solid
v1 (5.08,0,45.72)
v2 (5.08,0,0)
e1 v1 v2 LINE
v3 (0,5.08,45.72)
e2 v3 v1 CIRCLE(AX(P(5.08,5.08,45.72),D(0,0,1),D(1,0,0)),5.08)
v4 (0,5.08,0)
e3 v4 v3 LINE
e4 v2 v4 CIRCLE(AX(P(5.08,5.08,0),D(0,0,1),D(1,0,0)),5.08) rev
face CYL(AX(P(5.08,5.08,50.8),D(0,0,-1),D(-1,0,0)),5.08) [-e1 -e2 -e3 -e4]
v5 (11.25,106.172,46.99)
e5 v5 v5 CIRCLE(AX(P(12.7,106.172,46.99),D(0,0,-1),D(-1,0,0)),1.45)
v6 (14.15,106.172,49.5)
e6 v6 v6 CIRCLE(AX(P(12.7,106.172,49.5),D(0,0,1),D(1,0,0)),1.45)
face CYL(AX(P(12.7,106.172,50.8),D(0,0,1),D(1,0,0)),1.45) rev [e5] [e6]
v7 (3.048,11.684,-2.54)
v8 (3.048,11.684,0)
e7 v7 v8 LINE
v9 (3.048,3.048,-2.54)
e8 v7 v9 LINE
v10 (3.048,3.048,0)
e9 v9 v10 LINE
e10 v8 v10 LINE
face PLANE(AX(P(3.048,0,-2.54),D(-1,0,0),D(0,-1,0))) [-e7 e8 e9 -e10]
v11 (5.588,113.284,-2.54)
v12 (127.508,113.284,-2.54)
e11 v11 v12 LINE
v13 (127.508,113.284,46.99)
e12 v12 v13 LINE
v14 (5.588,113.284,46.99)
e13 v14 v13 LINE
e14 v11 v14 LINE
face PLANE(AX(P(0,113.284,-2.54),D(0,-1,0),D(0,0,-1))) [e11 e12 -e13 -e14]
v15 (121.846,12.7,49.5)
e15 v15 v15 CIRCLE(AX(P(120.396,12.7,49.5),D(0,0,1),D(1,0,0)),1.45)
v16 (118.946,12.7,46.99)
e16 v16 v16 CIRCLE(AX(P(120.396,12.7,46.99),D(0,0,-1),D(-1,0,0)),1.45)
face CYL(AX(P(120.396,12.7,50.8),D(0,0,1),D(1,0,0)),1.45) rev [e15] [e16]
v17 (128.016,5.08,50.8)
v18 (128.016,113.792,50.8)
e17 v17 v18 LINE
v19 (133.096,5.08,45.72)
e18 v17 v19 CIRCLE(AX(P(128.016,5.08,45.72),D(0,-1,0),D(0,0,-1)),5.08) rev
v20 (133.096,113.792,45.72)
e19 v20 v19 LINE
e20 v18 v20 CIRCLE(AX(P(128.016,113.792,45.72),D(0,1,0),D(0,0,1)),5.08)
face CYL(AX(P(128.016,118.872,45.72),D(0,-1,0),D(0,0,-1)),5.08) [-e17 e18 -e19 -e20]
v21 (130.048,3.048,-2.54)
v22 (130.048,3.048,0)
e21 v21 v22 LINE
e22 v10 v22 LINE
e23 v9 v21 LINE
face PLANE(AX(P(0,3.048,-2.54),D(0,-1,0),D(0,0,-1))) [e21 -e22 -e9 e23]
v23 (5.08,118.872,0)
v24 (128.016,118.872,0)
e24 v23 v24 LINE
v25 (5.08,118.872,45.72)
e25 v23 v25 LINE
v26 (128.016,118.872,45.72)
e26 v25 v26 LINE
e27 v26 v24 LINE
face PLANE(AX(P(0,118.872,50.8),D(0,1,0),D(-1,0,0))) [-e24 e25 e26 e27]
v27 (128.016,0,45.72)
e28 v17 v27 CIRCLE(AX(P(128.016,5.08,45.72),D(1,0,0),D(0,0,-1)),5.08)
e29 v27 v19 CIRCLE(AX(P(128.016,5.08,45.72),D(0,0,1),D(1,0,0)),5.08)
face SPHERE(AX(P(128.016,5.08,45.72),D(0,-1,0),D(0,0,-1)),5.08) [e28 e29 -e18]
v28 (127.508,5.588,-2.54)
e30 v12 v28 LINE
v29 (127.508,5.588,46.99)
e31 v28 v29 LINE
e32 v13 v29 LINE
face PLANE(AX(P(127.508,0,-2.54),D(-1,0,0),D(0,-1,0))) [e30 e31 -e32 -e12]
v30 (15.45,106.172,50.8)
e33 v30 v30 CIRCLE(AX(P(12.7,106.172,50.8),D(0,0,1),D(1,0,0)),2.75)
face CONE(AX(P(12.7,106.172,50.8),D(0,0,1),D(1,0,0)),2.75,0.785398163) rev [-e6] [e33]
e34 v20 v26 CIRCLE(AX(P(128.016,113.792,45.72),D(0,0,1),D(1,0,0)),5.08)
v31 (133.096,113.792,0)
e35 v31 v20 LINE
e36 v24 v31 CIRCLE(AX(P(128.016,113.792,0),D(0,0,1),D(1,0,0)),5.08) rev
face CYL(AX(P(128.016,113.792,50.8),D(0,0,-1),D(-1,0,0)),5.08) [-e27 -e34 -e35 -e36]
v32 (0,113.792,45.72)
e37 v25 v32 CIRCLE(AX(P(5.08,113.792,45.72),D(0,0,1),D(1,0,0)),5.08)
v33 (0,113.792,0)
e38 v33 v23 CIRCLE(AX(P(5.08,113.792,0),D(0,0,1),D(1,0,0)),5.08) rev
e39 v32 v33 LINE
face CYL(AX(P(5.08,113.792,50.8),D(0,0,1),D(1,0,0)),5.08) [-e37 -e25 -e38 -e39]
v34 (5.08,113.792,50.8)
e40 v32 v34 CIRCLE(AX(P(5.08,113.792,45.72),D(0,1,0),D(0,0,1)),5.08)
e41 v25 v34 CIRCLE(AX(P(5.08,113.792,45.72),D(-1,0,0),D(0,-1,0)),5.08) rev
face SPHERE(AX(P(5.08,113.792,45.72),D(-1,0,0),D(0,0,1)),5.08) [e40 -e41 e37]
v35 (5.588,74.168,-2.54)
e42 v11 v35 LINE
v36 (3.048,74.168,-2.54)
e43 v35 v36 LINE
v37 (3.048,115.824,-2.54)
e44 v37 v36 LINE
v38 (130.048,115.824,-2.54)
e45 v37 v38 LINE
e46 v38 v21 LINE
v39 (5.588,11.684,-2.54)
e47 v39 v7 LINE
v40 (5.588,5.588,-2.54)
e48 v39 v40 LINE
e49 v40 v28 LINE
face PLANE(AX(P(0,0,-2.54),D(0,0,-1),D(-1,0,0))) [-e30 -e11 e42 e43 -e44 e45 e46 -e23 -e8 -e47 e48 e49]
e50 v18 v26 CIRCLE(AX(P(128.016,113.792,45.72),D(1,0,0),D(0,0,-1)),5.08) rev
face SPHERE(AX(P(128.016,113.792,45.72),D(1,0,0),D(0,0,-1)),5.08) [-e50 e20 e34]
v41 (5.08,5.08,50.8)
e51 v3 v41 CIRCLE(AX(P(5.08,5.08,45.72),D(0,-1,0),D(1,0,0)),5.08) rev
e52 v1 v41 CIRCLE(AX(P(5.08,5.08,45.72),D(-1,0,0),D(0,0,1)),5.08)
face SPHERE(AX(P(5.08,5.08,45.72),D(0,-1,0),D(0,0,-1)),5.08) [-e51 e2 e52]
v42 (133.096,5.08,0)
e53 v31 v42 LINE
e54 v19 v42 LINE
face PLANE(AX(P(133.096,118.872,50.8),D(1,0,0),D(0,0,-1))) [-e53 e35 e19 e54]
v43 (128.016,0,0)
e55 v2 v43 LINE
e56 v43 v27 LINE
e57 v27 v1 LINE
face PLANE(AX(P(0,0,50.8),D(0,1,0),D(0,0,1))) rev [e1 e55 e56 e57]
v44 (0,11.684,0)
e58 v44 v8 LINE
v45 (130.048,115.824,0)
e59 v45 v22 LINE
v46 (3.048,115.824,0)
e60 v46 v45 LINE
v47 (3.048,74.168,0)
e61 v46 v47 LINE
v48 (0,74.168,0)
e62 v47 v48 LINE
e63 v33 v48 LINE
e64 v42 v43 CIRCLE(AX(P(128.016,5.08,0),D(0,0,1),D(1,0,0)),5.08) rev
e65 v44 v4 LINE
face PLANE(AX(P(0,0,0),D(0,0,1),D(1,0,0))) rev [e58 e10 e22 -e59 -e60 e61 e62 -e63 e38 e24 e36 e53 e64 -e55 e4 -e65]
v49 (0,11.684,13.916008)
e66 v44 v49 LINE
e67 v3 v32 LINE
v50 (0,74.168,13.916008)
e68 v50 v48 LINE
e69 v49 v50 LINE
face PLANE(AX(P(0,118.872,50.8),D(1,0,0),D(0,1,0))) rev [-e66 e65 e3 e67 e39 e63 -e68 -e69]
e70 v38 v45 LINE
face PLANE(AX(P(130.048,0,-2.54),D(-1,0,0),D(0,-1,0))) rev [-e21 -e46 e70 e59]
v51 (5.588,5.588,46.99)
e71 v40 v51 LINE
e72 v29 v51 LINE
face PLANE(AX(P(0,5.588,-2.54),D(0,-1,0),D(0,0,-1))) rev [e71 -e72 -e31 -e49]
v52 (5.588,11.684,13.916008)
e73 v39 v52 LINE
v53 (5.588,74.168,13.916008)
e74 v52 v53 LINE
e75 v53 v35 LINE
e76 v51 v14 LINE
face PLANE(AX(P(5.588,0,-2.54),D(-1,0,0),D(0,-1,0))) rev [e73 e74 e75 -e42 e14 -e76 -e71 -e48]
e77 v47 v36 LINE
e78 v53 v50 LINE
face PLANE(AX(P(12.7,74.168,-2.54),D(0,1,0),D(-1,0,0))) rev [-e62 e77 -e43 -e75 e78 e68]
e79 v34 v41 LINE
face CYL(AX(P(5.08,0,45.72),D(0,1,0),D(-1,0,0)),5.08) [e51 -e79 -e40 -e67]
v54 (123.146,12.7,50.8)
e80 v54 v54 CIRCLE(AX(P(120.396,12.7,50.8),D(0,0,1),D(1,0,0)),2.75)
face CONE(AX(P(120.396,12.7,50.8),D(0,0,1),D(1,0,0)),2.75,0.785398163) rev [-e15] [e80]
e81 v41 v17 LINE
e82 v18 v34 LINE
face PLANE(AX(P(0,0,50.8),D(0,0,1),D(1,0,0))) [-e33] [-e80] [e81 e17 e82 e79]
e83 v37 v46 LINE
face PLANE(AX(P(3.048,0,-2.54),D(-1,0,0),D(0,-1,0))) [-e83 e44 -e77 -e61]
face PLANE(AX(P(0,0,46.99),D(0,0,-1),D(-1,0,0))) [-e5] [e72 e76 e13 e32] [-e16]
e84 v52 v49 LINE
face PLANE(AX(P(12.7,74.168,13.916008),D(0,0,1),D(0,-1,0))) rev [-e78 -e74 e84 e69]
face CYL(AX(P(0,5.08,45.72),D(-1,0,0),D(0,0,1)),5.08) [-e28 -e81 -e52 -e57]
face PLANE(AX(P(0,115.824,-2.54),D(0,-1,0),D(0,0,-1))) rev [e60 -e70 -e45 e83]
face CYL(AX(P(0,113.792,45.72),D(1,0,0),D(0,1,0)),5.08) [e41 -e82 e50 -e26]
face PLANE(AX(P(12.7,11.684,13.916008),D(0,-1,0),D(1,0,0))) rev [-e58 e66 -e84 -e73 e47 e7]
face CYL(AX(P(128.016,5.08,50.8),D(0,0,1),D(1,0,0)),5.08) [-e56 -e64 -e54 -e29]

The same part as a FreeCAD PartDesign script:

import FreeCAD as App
import Part
import Sketcher

V = App.Vector
Q = App.Units.Quantity


def edges_at(feature, points):
    """Names of the edges that pass closest to the given points."""
    edges = feature.Shape.Edges
    near = lambda p: min(range(len(edges)), key=lambda i: edges[i].distToShape(Part.Vertex(*p))[0])
    return sorted({f"Edge{near(p) + 1}" for p in points})

doc = App.newDocument("Part")
body = doc.addObject("PartDesign::Body", "Body")

# Sketch on XY plane
sketch1 = body.newObject("Sketcher::SketchObject", "Sketch")
sketch1.AttachmentSupport = (doc.getObject("XY_Plane"), [""])
sketch1.MapMode = "FlatFace"
sketch1.addGeometry(Part.LineSegment(V(0, 118.872, 0), V(0, 0, 0)), False)
sketch1.addGeometry(Part.LineSegment(V(0, 0, 0), V(133.096, 0, 0)), False)
sketch1.addGeometry(Part.LineSegment(V(133.096, 0, 0), V(133.096, 118.872, 0)), False)
sketch1.addGeometry(Part.LineSegment(V(133.096, 118.872, 0), V(0, 118.872, 0)), False)
sketch1.addConstraint(Sketcher.Constraint("Coincident", 0, 2, 1, 1))
sketch1.addConstraint(Sketcher.Constraint("Coincident", 1, 2, 2, 1))
sketch1.addConstraint(Sketcher.Constraint("Coincident", 2, 2, 3, 1))
sketch1.addConstraint(Sketcher.Constraint("Coincident", 3, 2, 0, 1))
sketch1.addConstraint(Sketcher.Constraint("Vertical", 0))
sketch1.addConstraint(Sketcher.Constraint("Horizontal", 1))
sketch1.addConstraint(Sketcher.Constraint("Vertical", 2))
sketch1.addConstraint(Sketcher.Constraint("Horizontal", 3))
sketch1.addConstraint(Sketcher.Constraint("Coincident", 0, 2, -1, 1))
sketch1.addConstraint(Sketcher.Constraint("DistanceX", 1, 1, 1, 2, Q("5.24 in")))
sketch1.addConstraint(Sketcher.Constraint("DistanceY", 0, 2, 0, 1, Q("4.68 in")))
pad1 = body.newObject("PartDesign::Pad", "Pad")
pad1.Profile = sketch1
pad1.Length = Q("2 in")

# Sketch on XY plane
sketch2 = body.newObject("Sketcher::SketchObject", "Sketch001")
sketch2.AttachmentSupport = (doc.getObject("XY_Plane"), [""])
sketch2.MapMode = "FlatFace"
sketch2.addGeometry(Part.LineSegment(V(130.048, 115.824, 0), V(3.048, 115.824, 0)), False)
sketch2.addGeometry(Part.LineSegment(V(3.048, 115.824, 0), V(3.048, 3.048, 0)), False)
sketch2.addGeometry(Part.LineSegment(V(3.048, 3.048, 0), V(130.048, 3.048, 0)), False)
sketch2.addGeometry(Part.LineSegment(V(130.048, 3.048, 0), V(130.048, 115.824, 0)), False)
sketch2.addGeometry(Part.LineSegment(V(5.588, 5.588, 0), V(5.588, 113.284, 0)), False)
sketch2.addGeometry(Part.LineSegment(V(5.588, 113.284, 0), V(127.508, 113.284, 0)), False)
sketch2.addGeometry(Part.LineSegment(V(127.508, 113.284, 0), V(127.508, 5.588, 0)), False)
sketch2.addGeometry(Part.LineSegment(V(127.508, 5.588, 0), V(5.588, 5.588, 0)), False)
sketch2.addConstraint(Sketcher.Constraint("Coincident", 0, 2, 1, 1))
sketch2.addConstraint(Sketcher.Constraint("Coincident", 1, 2, 2, 1))
sketch2.addConstraint(Sketcher.Constraint("Coincident", 2, 2, 3, 1))
sketch2.addConstraint(Sketcher.Constraint("Coincident", 3, 2, 0, 1))
sketch2.addConstraint(Sketcher.Constraint("Coincident", 4, 2, 5, 1))
sketch2.addConstraint(Sketcher.Constraint("Coincident", 5, 2, 6, 1))
sketch2.addConstraint(Sketcher.Constraint("Coincident", 6, 2, 7, 1))
sketch2.addConstraint(Sketcher.Constraint("Coincident", 7, 2, 4, 1))
sketch2.addConstraint(Sketcher.Constraint("Horizontal", 0))
sketch2.addConstraint(Sketcher.Constraint("Vertical", 1))
sketch2.addConstraint(Sketcher.Constraint("Horizontal", 2))
sketch2.addConstraint(Sketcher.Constraint("Vertical", 3))
sketch2.addConstraint(Sketcher.Constraint("Vertical", 4))
sketch2.addConstraint(Sketcher.Constraint("Horizontal", 5))
sketch2.addConstraint(Sketcher.Constraint("Vertical", 6))
sketch2.addConstraint(Sketcher.Constraint("Horizontal", 7))
sketch2.addConstraint(Sketcher.Constraint("DistanceX", 0, 2, 0, 1, Q("5 in")))
sketch2.addConstraint(Sketcher.Constraint("DistanceX", 5, 1, 5, 2, Q("4.8 in")))
sketch2.addConstraint(Sketcher.Constraint("DistanceY", 1, 2, 1, 1, Q("4.44 in")))
sketch2.addConstraint(Sketcher.Constraint("DistanceY", 4, 1, 4, 2, Q("4.24 in")))
sketch2.addConstraint(Sketcher.Constraint("DistanceX", 0, 2, 4, 2, Q("0.1 in")))
sketch2.addConstraint(Sketcher.Constraint("DistanceY", 4, 2, 0, 2, Q("0.1 in")))
sketch2.addConstraint(Sketcher.Constraint("DistanceX", -1, 1, 0, 2, Q("0.12 in")))
sketch2.addConstraint(Sketcher.Constraint("DistanceY", -1, 1, 0, 2, Q("4.56 in")))
pad2 = body.newObject("PartDesign::Pad", "Pad001")
pad2.Profile = sketch2
pad2.Length = Q("0.1 in")
pad2.Reversed = True

# Sketch on XY plane
sketch3 = body.newObject("Sketcher::SketchObject", "Sketch002")
sketch3.AttachmentSupport = (doc.getObject("XY_Plane"), [""])
sketch3.MapMode = "FlatFace"
sketch3.addGeometry(Part.LineSegment(V(127.508, 113.284, 0), V(127.508, 5.588, 0)), False)
sketch3.addGeometry(Part.LineSegment(V(127.508, 5.588, 0), V(5.588, 5.588, 0)), False)
sketch3.addGeometry(Part.LineSegment(V(5.588, 5.588, 0), V(5.588, 113.284, 0)), False)
sketch3.addGeometry(Part.LineSegment(V(5.588, 113.284, 0), V(127.508, 113.284, 0)), False)
sketch3.addConstraint(Sketcher.Constraint("Coincident", 0, 2, 1, 1))
sketch3.addConstraint(Sketcher.Constraint("Coincident", 1, 2, 2, 1))
sketch3.addConstraint(Sketcher.Constraint("Coincident", 2, 2, 3, 1))
sketch3.addConstraint(Sketcher.Constraint("Coincident", 3, 2, 0, 1))
sketch3.addConstraint(Sketcher.Constraint("Vertical", 0))
sketch3.addConstraint(Sketcher.Constraint("Horizontal", 1))
sketch3.addConstraint(Sketcher.Constraint("Vertical", 2))
sketch3.addConstraint(Sketcher.Constraint("Horizontal", 3))
sketch3.addConstraint(Sketcher.Constraint("DistanceX", 1, 2, 1, 1, Q("4.8 in")))
sketch3.addConstraint(Sketcher.Constraint("DistanceY", 0, 2, 0, 1, Q("4.24 in")))
sketch3.addConstraint(Sketcher.Constraint("DistanceX", -1, 1, 0, 2, Q("5.02 in")))
sketch3.addConstraint(Sketcher.Constraint("DistanceY", -1, 1, 0, 2, Q("0.22 in")))
pocket1 = body.newObject("PartDesign::Pocket", "Pocket")
pocket1.Profile = sketch3
pocket1.Length = Q("1.85 in")
pocket1.Reversed = True

# Sketch on YZ plane
sketch4 = body.newObject("Sketcher::SketchObject", "Sketch003")
sketch4.AttachmentSupport = (doc.getObject("YZ_Plane"), [""])
sketch4.MapMode = "FlatFace"
sketch4.addGeometry(Part.LineSegment(V(74.168, -2.54, 0), V(11.684, -2.54, 0)), False)
sketch4.addGeometry(Part.LineSegment(V(11.684, -2.54, 0), V(11.684, 13.916008, 0)), False)
sketch4.addGeometry(Part.LineSegment(V(11.684, 13.916008, 0), V(74.168, 13.916008, 0)), False)
sketch4.addGeometry(Part.LineSegment(V(74.168, 13.916008, 0), V(74.168, -2.54, 0)), False)
sketch4.addConstraint(Sketcher.Constraint("Coincident", 0, 2, 1, 1))
sketch4.addConstraint(Sketcher.Constraint("Coincident", 1, 2, 2, 1))
sketch4.addConstraint(Sketcher.Constraint("Coincident", 2, 2, 3, 1))
sketch4.addConstraint(Sketcher.Constraint("Coincident", 3, 2, 0, 1))
sketch4.addConstraint(Sketcher.Constraint("Horizontal", 0))
sketch4.addConstraint(Sketcher.Constraint("Vertical", 1))
sketch4.addConstraint(Sketcher.Constraint("Horizontal", 2))
sketch4.addConstraint(Sketcher.Constraint("Vertical", 3))
sketch4.addConstraint(Sketcher.Constraint("DistanceX", 0, 2, 0, 1, Q("2.46 in")))
sketch4.addConstraint(Sketcher.Constraint("DistanceY", 0, 2, -1, 1, Q("0.1 in")))
sketch4.addConstraint(Sketcher.Constraint("DistanceX", -1, 1, 0, 2, Q("0.46 in")))
sketch4.addConstraint(Sketcher.Constraint("DistanceY", 1, 1, 1, 2, Q("16.456008 mm")))
pocket2 = body.newObject("PartDesign::Pocket", "Pocket001")
pocket2.Profile = sketch4
pocket2.Length = Q("0.5 in")
pocket2.Reversed = True
doc.recompute()

fillet = body.newObject("PartDesign::Fillet", "Fillet")
fillet.Base = (pocket2, edges_at(pocket2, [
    (133.096, 59.436, 50.8),
    (66.548, 118.872, 50.8),
    (0, 59.436, 50.8),
    (0, 118.872, 25.4),
    (133.096, 118.872, 25.4),
    (133.096, 0, 25.4),
    (0, 0, 25.4),
    (66.548, 0, 50.8),
]))
fillet.Radius = Q("0.2 in")

# Sketch on XY plane
sketch5 = body.newObject("Sketcher::SketchObject", "Sketch004")
sketch5.AttachmentSupport = (doc.getObject("XY_Plane"), [""])
sketch5.MapMode = "FlatFace"
sketch5.AttachmentOffset = App.Placement(V(0, 0, 2 * 25.4), App.Rotation())
sketch5.addGeometry(Part.Circle(V(12.7, 106.172, 0), V(0, 0, 1), 1.45), False)
sketch5.addGeometry(Part.Circle(V(120.396, 12.7, 0), V(0, 0, 1), 1.45), False)
sketch5.addConstraint(Sketcher.Constraint("Equal", 0, 1))
sketch5.addConstraint(Sketcher.Constraint("DistanceX", -1, 1, 0, 3, Q("0.5 in")))
sketch5.addConstraint(Sketcher.Constraint("DistanceY", -1, 1, 1, 3, Q("0.5 in")))
sketch5.addConstraint(Sketcher.Constraint("Diameter", 0, Q("2.9 mm")))
sketch5.addConstraint(Sketcher.Constraint("DistanceY", -1, 1, 0, 3, Q("4.18 in")))
sketch5.addConstraint(Sketcher.Constraint("DistanceX", -1, 1, 1, 3, Q("4.74 in")))
doc.recompute()
hole = body.newObject("PartDesign::Hole", "Hole")
hole.Profile = sketch5
hole.ThreadType = "None"
hole.Diameter = 2.9
hole.DepthType = "Dimension"
hole.Depth = Q("0.2 in")
hole.DrillPoint = "Angled"
hole.DrillPointAngle = 118
hole.HoleCutType = "Countersink"
hole.HoleCutDiameter = 5.5
hole.HoleCutCountersinkAngle = 90

doc.recompute()
